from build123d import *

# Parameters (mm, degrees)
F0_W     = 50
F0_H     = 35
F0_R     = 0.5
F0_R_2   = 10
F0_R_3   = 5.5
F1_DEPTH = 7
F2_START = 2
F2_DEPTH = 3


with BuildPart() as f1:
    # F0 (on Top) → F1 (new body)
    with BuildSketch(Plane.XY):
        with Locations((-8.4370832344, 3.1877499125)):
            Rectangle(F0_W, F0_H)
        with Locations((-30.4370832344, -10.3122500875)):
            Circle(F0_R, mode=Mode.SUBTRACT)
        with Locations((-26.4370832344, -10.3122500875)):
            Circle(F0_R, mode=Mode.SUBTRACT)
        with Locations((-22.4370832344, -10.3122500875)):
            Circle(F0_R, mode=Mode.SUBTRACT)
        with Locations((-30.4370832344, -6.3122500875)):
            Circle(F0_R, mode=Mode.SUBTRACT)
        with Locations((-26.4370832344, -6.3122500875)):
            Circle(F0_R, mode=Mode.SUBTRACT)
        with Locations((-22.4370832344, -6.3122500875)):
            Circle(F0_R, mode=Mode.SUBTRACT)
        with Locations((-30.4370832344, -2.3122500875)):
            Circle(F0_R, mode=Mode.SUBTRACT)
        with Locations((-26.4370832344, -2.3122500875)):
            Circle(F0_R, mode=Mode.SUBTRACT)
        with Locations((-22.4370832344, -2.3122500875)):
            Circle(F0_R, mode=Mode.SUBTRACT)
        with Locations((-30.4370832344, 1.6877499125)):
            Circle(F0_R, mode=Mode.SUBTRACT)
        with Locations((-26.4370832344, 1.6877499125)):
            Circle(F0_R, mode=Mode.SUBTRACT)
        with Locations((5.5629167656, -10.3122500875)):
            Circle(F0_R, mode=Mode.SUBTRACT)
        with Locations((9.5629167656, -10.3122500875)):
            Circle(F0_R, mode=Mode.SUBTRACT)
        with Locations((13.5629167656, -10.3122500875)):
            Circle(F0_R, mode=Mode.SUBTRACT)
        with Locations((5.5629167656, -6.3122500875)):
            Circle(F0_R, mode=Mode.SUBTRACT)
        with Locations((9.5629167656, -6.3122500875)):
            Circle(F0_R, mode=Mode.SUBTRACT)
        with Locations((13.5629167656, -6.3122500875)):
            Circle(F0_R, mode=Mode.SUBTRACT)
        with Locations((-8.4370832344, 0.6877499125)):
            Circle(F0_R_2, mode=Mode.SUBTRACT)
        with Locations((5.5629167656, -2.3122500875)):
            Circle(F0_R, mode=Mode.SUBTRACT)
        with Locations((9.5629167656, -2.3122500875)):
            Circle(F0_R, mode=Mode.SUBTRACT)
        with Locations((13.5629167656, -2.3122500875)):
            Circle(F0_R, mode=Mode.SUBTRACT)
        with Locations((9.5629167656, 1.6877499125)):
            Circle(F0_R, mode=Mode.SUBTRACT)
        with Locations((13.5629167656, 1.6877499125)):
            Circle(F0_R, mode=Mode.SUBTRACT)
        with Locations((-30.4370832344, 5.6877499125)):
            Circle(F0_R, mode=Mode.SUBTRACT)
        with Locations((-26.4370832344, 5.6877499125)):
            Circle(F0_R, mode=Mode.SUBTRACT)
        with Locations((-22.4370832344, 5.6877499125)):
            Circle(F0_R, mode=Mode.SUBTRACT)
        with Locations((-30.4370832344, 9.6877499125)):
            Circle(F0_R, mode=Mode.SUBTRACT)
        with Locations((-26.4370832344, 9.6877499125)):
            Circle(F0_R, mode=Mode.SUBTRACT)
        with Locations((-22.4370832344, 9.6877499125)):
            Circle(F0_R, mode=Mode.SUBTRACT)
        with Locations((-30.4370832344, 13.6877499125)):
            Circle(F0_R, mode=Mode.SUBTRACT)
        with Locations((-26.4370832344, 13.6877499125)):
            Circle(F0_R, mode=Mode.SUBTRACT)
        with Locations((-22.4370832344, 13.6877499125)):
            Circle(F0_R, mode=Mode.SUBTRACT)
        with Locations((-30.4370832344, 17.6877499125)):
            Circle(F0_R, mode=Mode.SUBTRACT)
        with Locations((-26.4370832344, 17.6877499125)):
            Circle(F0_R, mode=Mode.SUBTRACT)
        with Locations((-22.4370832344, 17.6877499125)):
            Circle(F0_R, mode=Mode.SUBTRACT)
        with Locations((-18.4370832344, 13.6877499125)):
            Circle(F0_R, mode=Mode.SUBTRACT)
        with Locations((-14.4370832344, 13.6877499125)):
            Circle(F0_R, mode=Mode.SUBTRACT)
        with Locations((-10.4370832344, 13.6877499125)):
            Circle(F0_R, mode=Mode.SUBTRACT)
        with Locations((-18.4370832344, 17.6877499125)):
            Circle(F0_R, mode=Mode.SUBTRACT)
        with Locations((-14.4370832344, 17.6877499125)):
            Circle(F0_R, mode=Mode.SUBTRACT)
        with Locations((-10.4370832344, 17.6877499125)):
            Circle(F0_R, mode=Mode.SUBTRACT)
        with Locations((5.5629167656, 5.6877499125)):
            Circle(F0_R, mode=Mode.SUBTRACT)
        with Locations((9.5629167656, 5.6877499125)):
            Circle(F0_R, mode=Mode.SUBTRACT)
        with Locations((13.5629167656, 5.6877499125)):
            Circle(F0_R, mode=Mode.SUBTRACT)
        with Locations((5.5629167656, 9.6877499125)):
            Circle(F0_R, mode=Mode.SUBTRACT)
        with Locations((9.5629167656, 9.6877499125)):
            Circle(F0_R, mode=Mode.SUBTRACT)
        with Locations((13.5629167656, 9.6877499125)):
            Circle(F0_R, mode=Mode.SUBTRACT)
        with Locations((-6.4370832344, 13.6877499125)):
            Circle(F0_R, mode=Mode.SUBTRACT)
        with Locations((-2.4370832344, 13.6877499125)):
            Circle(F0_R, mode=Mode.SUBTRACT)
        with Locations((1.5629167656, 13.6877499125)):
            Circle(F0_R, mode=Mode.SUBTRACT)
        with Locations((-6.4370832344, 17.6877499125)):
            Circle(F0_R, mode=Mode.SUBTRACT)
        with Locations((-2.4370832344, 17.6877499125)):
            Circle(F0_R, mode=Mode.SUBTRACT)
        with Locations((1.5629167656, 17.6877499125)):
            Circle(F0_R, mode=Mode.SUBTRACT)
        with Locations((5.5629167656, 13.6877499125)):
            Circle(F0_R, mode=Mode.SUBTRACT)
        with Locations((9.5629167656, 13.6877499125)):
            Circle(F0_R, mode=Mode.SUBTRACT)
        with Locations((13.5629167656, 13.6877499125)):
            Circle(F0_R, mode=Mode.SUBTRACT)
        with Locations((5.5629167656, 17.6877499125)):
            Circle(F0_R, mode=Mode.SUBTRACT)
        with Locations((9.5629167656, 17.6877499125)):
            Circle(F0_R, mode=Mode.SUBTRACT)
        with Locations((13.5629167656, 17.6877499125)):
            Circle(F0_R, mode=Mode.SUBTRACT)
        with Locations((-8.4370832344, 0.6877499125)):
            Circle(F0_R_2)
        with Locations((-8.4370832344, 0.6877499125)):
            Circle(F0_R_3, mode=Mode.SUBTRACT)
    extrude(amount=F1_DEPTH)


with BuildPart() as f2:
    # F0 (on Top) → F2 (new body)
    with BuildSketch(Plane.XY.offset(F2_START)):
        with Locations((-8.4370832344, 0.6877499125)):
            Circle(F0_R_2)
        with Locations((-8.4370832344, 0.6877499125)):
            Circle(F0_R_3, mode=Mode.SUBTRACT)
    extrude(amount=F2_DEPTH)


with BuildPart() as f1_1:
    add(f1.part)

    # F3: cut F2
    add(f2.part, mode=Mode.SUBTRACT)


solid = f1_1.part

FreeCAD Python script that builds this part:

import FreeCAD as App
import Part
import Sketcher

V = App.Vector

doc = App.newDocument("Part")
body = doc.addObject("PartDesign::Body", "Body")

# Sketch on XY plane
sketch1 = doc.addObject("Sketcher::SketchObject", "Sketch")
body.addObject(sketch1)
sketch1.AttachmentSupport = (doc.XY_Plane, [""])
sketch1.MapMode = "FlatFace"
sketch1.addGeometry(Part.LineSegment(V(-33.4, 20.7, 0), V(-33.4, -14.3, 0)), False)
sketch1.addGeometry(Part.LineSegment(V(-33.4, -14.3, 0), V(16.6, -14.3, 0)), False)
sketch1.addGeometry(Part.LineSegment(V(16.6, -14.3, 0), V(16.6, 20.7, 0)), False)
sketch1.addGeometry(Part.LineSegment(V(16.6, 20.7, 0), V(-33.4, 20.7, 0)), False)
sketch1.addGeometry(Part.Circle(V(-30.4, -10.3, 0), V(0, 0, 1), 0.5), False)
sketch1.addGeometry(Part.Circle(V(-26.4, -10.3, 0), V(0, 0, 1), 0.5), False)
sketch1.addGeometry(Part.Circle(V(-22.4, -10.3, 0), V(0, 0, 1), 0.5), False)
sketch1.addGeometry(Part.Circle(V(-30.4, -6.3, 0), V(0, 0, 1), 0.5), False)
sketch1.addGeometry(Part.Circle(V(-26.4, -6.3, 0), V(0, 0, 1), 0.5), False)
sketch1.addGeometry(Part.Circle(V(-22.4, -6.3, 0), V(0, 0, 1), 0.5), False)
sketch1.addGeometry(Part.Circle(V(-30.4, -2.3, 0), V(0, 0, 1), 0.5), False)
sketch1.addGeometry(Part.Circle(V(-26.4, -2.3, 0), V(0, 0, 1), 0.5), False)
sketch1.addGeometry(Part.Circle(V(-22.4, -2.3, 0), V(0, 0, 1), 0.5), False)
sketch1.addGeometry(Part.Circle(V(-30.4, 1.7, 0), V(0, 0, 1), 0.5), False)
sketch1.addGeometry(Part.Circle(V(-26.4, 1.7, 0), V(0, 0, 1), 0.5), False)
sketch1.addGeometry(Part.Circle(V(5.6, -10.3, 0), V(0, 0, 1), 0.5), False)
sketch1.addGeometry(Part.Circle(V(9.6, -10.3, 0), V(0, 0, 1), 0.5), False)
sketch1.addGeometry(Part.Circle(V(13.6, -10.3, 0), V(0, 0, 1), 0.5), False)
sketch1.addGeometry(Part.Circle(V(5.6, -6.3, 0), V(0, 0, 1), 0.5), False)
sketch1.addGeometry(Part.Circle(V(9.6, -6.3, 0), V(0, 0, 1), 0.5), False)
sketch1.addGeometry(Part.Circle(V(13.6, -6.3, 0), V(0, 0, 1), 0.5), False)
sketch1.addGeometry(Part.Circle(V(-8.4, 0.7, 0), V(0, 0, 1), 5.5), False)
sketch1.addGeometry(Part.Circle(V(5.6, -2.3, 0), V(0, 0, 1), 0.5), False)
sketch1.addGeometry(Part.Circle(V(9.6, -2.3, 0), V(0, 0, 1), 0.5), False)
sketch1.addGeometry(Part.Circle(V(13.6, -2.3, 0), V(0, 0, 1), 0.5), False)
sketch1.addGeometry(Part.Circle(V(9.6, 1.7, 0), V(0, 0, 1), 0.5), False)
sketch1.addGeometry(Part.Circle(V(13.6, 1.7, 0), V(0, 0, 1), 0.5), False)
sketch1.addGeometry(Part.Circle(V(-30.4, 5.7, 0), V(0, 0, 1), 0.5), False)
sketch1.addGeometry(Part.Circle(V(-26.4, 5.7, 0), V(0, 0, 1), 0.5), False)
sketch1.addGeometry(Part.Circle(V(-22.4, 5.7, 0), V(0, 0, 1), 0.5), False)
sketch1.addGeometry(Part.Circle(V(-30.4, 9.7, 0), V(0, 0, 1), 0.5), False)
sketch1.addGeometry(Part.Circle(V(-26.4, 9.7, 0), V(0, 0, 1), 0.5), False)
sketch1.addGeometry(Part.Circle(V(-22.4, 9.7, 0), V(0, 0, 1), 0.5), False)
sketch1.addGeometry(Part.Circle(V(-30.4, 13.7, 0), V(0, 0, 1), 0.5), False)
sketch1.addGeometry(Part.Circle(V(-26.4, 13.7, 0), V(0, 0, 1), 0.5), False)
sketch1.addGeometry(Part.Circle(V(-22.4, 13.7, 0), V(0, 0, 1), 0.5), False)
sketch1.addGeometry(Part.Circle(V(-30.4, 17.7, 0), V(0, 0, 1), 0.5), False)
sketch1.addGeometry(Part.Circle(V(-26.4, 17.7, 0), V(0, 0, 1), 0.5), False)
sketch1.addGeometry(Part.Circle(V(-22.4, 17.7, 0), V(0, 0, 1), 0.5), False)
sketch1.addGeometry(Part.Circle(V(-18.4, 13.7, 0), V(0, 0, 1), 0.5), False)
sketch1.addGeometry(Part.Circle(V(-14.4, 13.7, 0), V(0, 0, 1), 0.5), False)
sketch1.addGeometry(Part.Circle(V(-10.4, 13.7, 0), V(0, 0, 1), 0.5), False)
sketch1.addGeometry(Part.Circle(V(-18.4, 17.7, 0), V(0, 0, 1), 0.5), False)
sketch1.addGeometry(Part.Circle(V(-14.4, 17.7, 0), V(0, 0, 1), 0.5), False)
sketch1.addGeometry(Part.Circle(V(-10.4, 17.7, 0), V(0, 0, 1), 0.5), False)
sketch1.addGeometry(Part.Circle(V(5.6, 5.7, 0), V(0, 0, 1), 0.5), False)
sketch1.addGeometry(Part.Circle(V(9.6, 5.7, 0), V(0, 0, 1), 0.5), False)
sketch1.addGeometry(Part.Circle(V(13.6, 5.7, 0), V(0, 0, 1), 0.5), False)
sketch1.addGeometry(Part.Circle(V(5.6, 9.7, 0), V(0, 0, 1), 0.5), False)
sketch1.addGeometry(Part.Circle(V(9.6, 9.7, 0), V(0, 0, 1), 0.5), False)
sketch1.addGeometry(Part.Circle(V(13.6, 9.7, 0), V(0, 0, 1), 0.5), False)
sketch1.addGeometry(Part.Circle(V(-6.4, 13.7, 0), V(0, 0, 1), 0.5), False)
sketch1.addGeometry(Part.Circle(V(-2.4, 13.7, 0), V(0, 0, 1), 0.5), False)
sketch1.addGeometry(Part.Circle(V(1.6, 13.7, 0), V(0, 0, 1), 0.5), False)
sketch1.addGeometry(Part.Circle(V(-6.4, 17.7, 0), V(0, 0, 1), 0.5), False)
sketch1.addGeometry(Part.Circle(V(-2.4, 17.7, 0), V(0, 0, 1), 0.5), False)
sketch1.addGeometry(Part.Circle(V(1.6, 17.7, 0), V(0, 0, 1), 0.5), False)
sketch1.addGeometry(Part.Circle(V(5.6, 13.7, 0), V(0, 0, 1), 0.5), False)
sketch1.addGeometry(Part.Circle(V(9.6, 13.7, 0), V(0, 0, 1), 0.5), False)
sketch1.addGeometry(Part.Circle(V(13.6, 13.7, 0), V(0, 0, 1), 0.5), False)
sketch1.addGeometry(Part.Circle(V(5.6, 17.7, 0), V(0, 0, 1), 0.5), False)
sketch1.addGeometry(Part.Circle(V(9.6, 17.7, 0), V(0, 0, 1), 0.5), False)
sketch1.addGeometry(Part.Circle(V(13.6, 17.7, 0), V(0, 0, 1), 0.5), False)
sketch1.addConstraint(Sketcher.Constraint("Coincident", 0, 2, 1, 1))
sketch1.addConstraint(Sketcher.Constraint("Coincident", 1, 2, 2, 1))
sketch1.addConstraint(Sketcher.Constraint("Coincident", 2, 2, 3, 1))
sketch1.addConstraint(Sketcher.Constraint("Coincident", 3, 2, 0, 1))
sketch1.addConstraint(Sketcher.Constraint("Vertical", 0))
sketch1.addConstraint(Sketcher.Constraint("Horizontal", 1))
sketch1.addConstraint(Sketcher.Constraint("Vertical", 2))
sketch1.addConstraint(Sketcher.Constraint("Horizontal", 3))
sketch1.addConstraint(Sketcher.Constraint("Equal", 4, 5))
sketch1.addConstraint(Sketcher.Constraint("Equal", 5, 6))
sketch1.addConstraint(Sketcher.Constraint("Equal", 6, 7))
sketch1.addConstraint(Sketcher.Constraint("Equal", 7, 8))
sketch1.addConstraint(Sketcher.Constraint("Equal", 8, 9))
sketch1.addConstraint(Sketcher.Constraint("Equal", 9, 10))
sketch1.addConstraint(Sketcher.Constraint("Equal", 10, 11))
sketch1.addConstraint(Sketcher.Constraint("Equal", 11, 12))
sketch1.addConstraint(Sketcher.Constraint("Equal", 12, 13))
sketch1.addConstraint(Sketcher.Constraint("Equal", 13, 14))
sketch1.addConstraint(Sketcher.Constraint("Equal", 14, 15))
sketch1.addConstraint(Sketcher.Constraint("Equal", 15, 16))
sketch1.addConstraint(Sketcher.Constraint("Equal", 16, 17))
sketch1.addConstraint(Sketcher.Constraint("Equal", 17, 18))
sketch1.addConstraint(Sketcher.Constraint("Equal", 18, 19))
sketch1.addConstraint(Sketcher.Constraint("Equal", 19, 20))
sketch1.addConstraint(Sketcher.Constraint("Equal", 20, 22))
sketch1.addConstraint(Sketcher.Constraint("Equal", 22, 23))
sketch1.addConstraint(Sketcher.Constraint("Equal", 23, 24))
sketch1.addConstraint(Sketcher.Constraint("Equal", 24, 25))
sketch1.addConstraint(Sketcher.Constraint("Equal", 25, 26))
sketch1.addConstraint(Sketcher.Constraint("Equal", 26, 27))
sketch1.addConstraint(Sketcher.Constraint("Equal", 27, 28))
sketch1.addConstraint(Sketcher.Constraint("Equal", 28, 29))
sketch1.addConstraint(Sketcher.Constraint("Equal", 29, 30))
sketch1.addConstraint(Sketcher.Constraint("Equal", 30, 31))
sketch1.addConstraint(Sketcher.Constraint("Equal", 31, 32))
sketch1.addConstraint(Sketcher.Constraint("Equal", 32, 33))
sketch1.addConstraint(Sketcher.Constraint("Equal", 33, 34))
sketch1.addConstraint(Sketcher.Constraint("Equal", 34, 35))
sketch1.addConstraint(Sketcher.Constraint("Equal", 35, 36))
sketch1.addConstraint(Sketcher.Constraint("Equal", 36, 37))
sketch1.addConstraint(Sketcher.Constraint("Equal", 37, 38))
sketch1.addConstraint(Sketcher.Constraint("Equal", 38, 39))
sketch1.addConstraint(Sketcher.Constraint("Equal", 39, 40))
sketch1.addConstraint(Sketcher.Constraint("Equal", 40, 41))
sketch1.addConstraint(Sketcher.Constraint("Equal", 41, 42))
sketch1.addConstraint(Sketcher.Constraint("Equal", 42, 43))
sketch1.addConstraint(Sketcher.Constraint("Equal", 43, 44))
sketch1.addConstraint(Sketcher.Constraint("Equal", 44, 45))
sketch1.addConstraint(Sketcher.Constraint("Equal", 45, 46))
sketch1.addConstraint(Sketcher.Constraint("Equal", 46, 47))
sketch1.addConstraint(Sketcher.Constraint("Equal", 47, 48))
sketch1.addConstraint(Sketcher.Constraint("Equal", 48, 49))
sketch1.addConstraint(Sketcher.Constraint("Equal", 49, 50))
sketch1.addConstraint(Sketcher.Constraint("Equal", 50, 51))
sketch1.addConstraint(Sketcher.Constraint("Equal", 51, 52))
sketch1.addConstraint(Sketcher.Constraint("Equal", 52, 53))
sketch1.addConstraint(Sketcher.Constraint("Equal", 53, 54))
sketch1.addConstraint(Sketcher.Constraint("Equal", 54, 55))
sketch1.addConstraint(Sketcher.Constraint("Equal", 55, 56))
sketch1.addConstraint(Sketcher.Constraint("Equal", 56, 57))
sketch1.addConstraint(Sketcher.Constraint("Equal", 57, 58))
sketch1.addConstraint(Sketcher.Constraint("Equal", 58, 59))
sketch1.addConstraint(Sketcher.Constraint("Equal", 59, 60))
sketch1.addConstraint(Sketcher.Constraint("Equal", 60, 61))
sketch1.addConstraint(Sketcher.Constraint("Equal", 61, 62))
sketch1.addConstraint(Sketcher.Constraint("Horizontal", 4, 3, 5, 3))
sketch1.addConstraint(Sketcher.Constraint("Horizontal", 5, 3, 6, 3))
sketch1.addConstraint(Sketcher.Constraint("Horizontal", 7, 3, 8, 3))
sketch1.addConstraint(Sketcher.Constraint("Horizontal", 8, 3, 9, 3))
sketch1.addConstraint(Sketcher.Constraint("Horizontal", 10, 3, 11, 3))
sketch1.addConstraint(Sketcher.Constraint("Horizontal", 11, 3, 12, 3))
sketch1.addConstraint(Sketcher.Constraint("Horizontal", 13, 3, 14, 3))
sketch1.addConstraint(Sketcher.Constraint("Horizontal", 6, 3, 15, 3))
sketch1.addConstraint(Sketcher.Constraint("Horizontal", 15, 3, 16, 3))
sketch1.addConstraint(Sketcher.Constraint("Horizontal", 16, 3, 17, 3))
sketch1.addConstraint(Sketcher.Constraint("Horizontal", 9, 3, 18, 3))
sketch1.addConstraint(Sketcher.Constraint("Horizontal", 18, 3, 19, 3))
sketch1.addConstraint(Sketcher.Constraint("Horizontal", 19, 3, 20, 3))
sketch1.addConstraint(Sketcher.Constraint("Horizontal", 12, 3, 22, 3))
sketch1.addConstraint(Sketcher.Constraint("Horizontal", 22, 3, 23, 3))
sketch1.addConstraint(Sketcher.Constraint("Horizontal", 23, 3, 24, 3))
sketch1.addConstraint(Sketcher.Constraint("Horizontal", 14, 3, 25, 3))
sketch1.addConstraint(Sketcher.Constraint("Horizontal", 25, 3, 26, 3))
sketch1.addConstraint(Sketcher.Constraint("Horizontal", 27, 3, 28, 3))
sketch1.addConstraint(Sketcher.Constraint("Horizontal", 28, 3, 29, 3))
sketch1.addConstraint(Sketcher.Constraint("Horizontal", 30, 3, 31, 3))
sketch1.addConstraint(Sketcher.Constraint("Horizontal", 31, 3, 32, 3))
sketch1.addConstraint(Sketcher.Constraint("Horizontal", 33, 3, 34, 3))
sketch1.addConstraint(Sketcher.Constraint("Horizontal", 34, 3, 35, 3))
sketch1.addConstraint(Sketcher.Constraint("Horizontal", 36, 3, 37, 3))
sketch1.addConstraint(Sketcher.Constraint("Horizontal", 37, 3, 38, 3))
sketch1.addConstraint(Sketcher.Constraint("Horizontal", 35, 3, 39, 3))
sketch1.addConstraint(Sketcher.Constraint("Horizontal", 39, 3, 40, 3))
sketch1.addConstraint(Sketcher.Constraint("Horizontal", 40, 3, 41, 3))
sketch1.addConstraint(Sketcher.Constraint("Horizontal", 38, 3, 42, 3))
sketch1.addConstraint(Sketcher.Constraint("Horizontal", 42, 3, 43, 3))
sketch1.addConstraint(Sketcher.Constraint("Horizontal", 43, 3, 44, 3))
sketch1.addConstraint(Sketcher.Constraint("Horizontal", 29, 3, 45, 3))
sketch1.addConstraint(Sketcher.Constraint("Horizontal", 45, 3, 46, 3))
sketch1.addConstraint(Sketcher.Constraint("Horizontal", 46, 3, 47, 3))
sketch1.addConstraint(Sketcher.Constraint("Horizontal", 32, 3, 48, 3))
sketch1.addConstraint(Sketcher.Constraint("Horizontal", 48, 3, 49, 3))
sketch1.addConstraint(Sketcher.Constraint("Horizontal", 49, 3, 50, 3))
sketch1.addConstraint(Sketcher.Constraint("Horizontal", 41, 3, 51, 3))
sketch1.addConstraint(Sketcher.Constraint("Horizontal", 51, 3, 52, 3))
sketch1.addConstraint(Sketcher.Constraint("Horizontal", 52, 3, 53, 3))
sketch1.addConstraint(Sketcher.Constraint("Horizontal", 44, 3, 54, 3))
sketch1.addConstraint(Sketcher.Constraint("Horizontal", 54, 3, 55, 3))
sketch1.addConstraint(Sketcher.Constraint("Horizontal", 55, 3, 56, 3))
sketch1.addConstraint(Sketcher.Constraint("Horizontal", 53, 3, 57, 3))
sketch1.addConstraint(Sketcher.Constraint("Horizontal", 57, 3, 58, 3))
sketch1.addConstraint(Sketcher.Constraint("Horizontal", 58, 3, 59, 3))
sketch1.addConstraint(Sketcher.Constraint("Horizontal", 56, 3, 60, 3))
sketch1.addConstraint(Sketcher.Constraint("Horizontal", 60, 3, 61, 3))
sketch1.addConstraint(Sketcher.Constraint("Horizontal", 61, 3, 62, 3))
sketch1.addConstraint(Sketcher.Constraint("Vertical", 4, 3, 7, 3))
sketch1.addConstraint(Sketcher.Constraint("Vertical", 5, 3, 8, 3))
sketch1.addConstraint(Sketcher.Constraint("Vertical", 6, 3, 9, 3))
sketch1.addConstraint(Sketcher.Constraint("Vertical", 7, 3, 10, 3))
sketch1.addConstraint(Sketcher.Constraint("Vertical", 8, 3, 11, 3))
sketch1.addConstraint(Sketcher.Constraint("Vertical", 9, 3, 12, 3))
sketch1.addConstraint(Sketcher.Constraint("Vertical", 10, 3, 13, 3))
sketch1.addConstraint(Sketcher.Constraint("Vertical", 11, 3, 14, 3))
sketch1.addConstraint(Sketcher.Constraint("Vertical", 15, 3, 18, 3))
sketch1.addConstraint(Sketcher.Constraint("Vertical", 16, 3, 19, 3))
sketch1.addConstraint(Sketcher.Constraint("Vertical", 17, 3, 20, 3))
sketch1.addConstraint(Sketcher.Constraint("Vertical", 18, 3, 22, 3))
sketch1.addConstraint(Sketcher.Constraint("Vertical", 19, 3, 23, 3))
sketch1.addConstraint(Sketcher.Constraint("Vertical", 20, 3, 24, 3))
sketch1.addConstraint(Sketcher.Constraint("Vertical", 23, 3, 25, 3))
sketch1.addConstraint(Sketcher.Constraint("Vertical", 24, 3, 26, 3))
sketch1.addConstraint(Sketcher.Constraint("Vertical", 13, 3, 27, 3))
sketch1.addConstraint(Sketcher.Constraint("Vertical", 14, 3, 28, 3))
sketch1.addConstraint(Sketcher.Constraint("Vertical", 12, 3, 29, 3))
sketch1.addConstraint(Sketcher.Constraint("Vertical", 27, 3, 30, 3))
sketch1.addConstraint(Sketcher.Constraint("Vertical", 28, 3, 31, 3))
sketch1.addConstraint(Sketcher.Constraint("Vertical", 29, 3, 32, 3))
sketch1.addConstraint(Sketcher.Constraint("Vertical", 30, 3, 33, 3))
sketch1.addConstraint(Sketcher.Constraint("Vertical", 31, 3, 34, 3))
sketch1.addConstraint(Sketcher.Constraint("Vertical", 32, 3, 35, 3))
sketch1.addConstraint(Sketcher.Constraint("Vertical", 33, 3, 36, 3))
sketch1.addConstraint(Sketcher.Constraint("Vertical", 34, 3, 37, 3))
sketch1.addConstraint(Sketcher.Constraint("Vertical", 35, 3, 38, 3))
sketch1.addConstraint(Sketcher.Constraint("Vertical", 39, 3, 42, 3))
sketch1.addConstraint(Sketcher.Constraint("Vertical", 40, 3, 43, 3))
sketch1.addConstraint(Sketcher.Constraint("Vertical", 41, 3, 44, 3))
sketch1.addConstraint(Sketcher.Constraint("Vertical", 22, 3, 45, 3))
sketch1.addConstraint(Sketcher.Constraint("Vertical", 25, 3, 46, 3))
sketch1.addConstraint(Sketcher.Constraint("Vertical", 26, 3, 47, 3))
sketch1.addConstraint(Sketcher.Constraint("Vertical", 45, 3, 48, 3))
sketch1.addConstraint(Sketcher.Constraint("Vertical", 46, 3, 49, 3))
sketch1.addConstraint(Sketcher.Constraint("Vertical", 47, 3, 50, 3))
sketch1.addConstraint(Sketcher.Constraint("Vertical", 51, 3, 54, 3))
sketch1.addConstraint(Sketcher.Constraint("Vertical", 52, 3, 55, 3))
sketch1.addConstraint(Sketcher.Constraint("Vertical", 53, 3, 56, 3))
sketch1.addConstraint(Sketcher.Constraint("Vertical", 48, 3, 57, 3))
sketch1.addConstraint(Sketcher.Constraint("Vertical", 49, 3, 58, 3))
sketch1.addConstraint(Sketcher.Constraint("Vertical", 50, 3, 59, 3))
sketch1.addConstraint(Sketcher.Constraint("Vertical", 57, 3, 60, 3))
sketch1.addConstraint(Sketcher.Constraint("Vertical", 58, 3, 61, 3))
sketch1.addConstraint(Sketcher.Constraint("Vertical", 59, 3, 62, 3))
sketch1.addConstraint(Sketcher.Constraint("Diameter", 4, 1.0))
sketch1.addConstraint(Sketcher.Constraint("Diameter", 21, 11.0))
sketch1.addConstraint(Sketcher.Constraint("DistanceX", 1, 1, 1, 2, 50.0))
sketch1.addConstraint(Sketcher.Constraint("DistanceY", 0, 2, 0, 1, 35.0))
sketch1.addConstraint(Sketcher.Constraint("DistanceY", 4, 3, -1, 1, 10.31225))
sketch1.addConstraint(Sketcher.Constraint("DistanceY", 7, 3, -1, 1, 6.31225))
sketch1.addConstraint(Sketcher.Constraint("DistanceY", 10, 3, -1, 1, 2.31225))
sketch1.addConstraint(Sketcher.Constraint("DistanceY", -1, 1, 13, 3, 1.68775))
sketch1.addConstraint(Sketcher.Constraint("DistanceY", -1, 1, 21, 3, 0.68775))
sketch1.addConstraint(Sketcher.Constraint("DistanceY", -1, 1, 27, 3, 5.68775))
sketch1.addConstraint(Sketcher.Constraint("DistanceY", -1, 1, 30, 3, 9.68775))
sketch1.addConstraint(Sketcher.Constraint("DistanceY", -1, 1, 33, 3, 13.68775))
sketch1.addConstraint(Sketcher.Constraint("DistanceY", -1, 1, 36, 3, 17.68775))
sketch1.addConstraint(Sketcher.Constraint("DistanceY", 0, 2, -1, 1, 14.31225))
sketch1.addConstraint(Sketcher.Constraint("DistanceX", 4, 3, -1, 1, 30.437083))
sketch1.addConstraint(Sketcher.Constraint("DistanceX", 5, 3, -1, 1, 26.437083))
sketch1.addConstraint(Sketcher.Constraint("DistanceX", 6, 3, -1, 1, 22.437083))
sketch1.addConstraint(Sketcher.Constraint("DistanceX", -1, 1, 15, 3, 5.562917))
sketch1.addConstraint(Sketcher.Constraint("DistanceX", -1, 1, 16, 3, 9.562917))
sketch1.addConstraint(Sketcher.Constraint("DistanceX", -1, 1, 17, 3, 13.562917))
sketch1.addConstraint(Sketcher.Constraint("DistanceX", 21, 3, -1, 1, 8.437083))
sketch1.addConstraint(Sketcher.Constraint("DistanceX", 39, 3, -1, 1, 18.437083))
sketch1.addConstraint(Sketcher.Constraint("DistanceX", 40, 3, -1, 1, 14.437083))
sketch1.addConstraint(Sketcher.Constraint("DistanceX", 41, 3, -1, 1, 10.437083))
sketch1.addConstraint(Sketcher.Constraint("DistanceX", 51, 3, -1, 1, 6.437083))
sketch1.addConstraint(Sketcher.Constraint("DistanceX", 52, 3, -1, 1, 2.437083))
sketch1.addConstraint(Sketcher.Constraint("DistanceX", -1, 1, 53, 3, 1.562917))
sketch1.addConstraint(Sketcher.Constraint("DistanceX", 0, 2, -1, 1, 33.437083))
pad1 = doc.addObject("PartDesign::Pad", "Pad")
body.addObject(pad1)
pad1.Profile = sketch1
pad1.Length = 7
body2 = doc.addObject("PartDesign::Body", "Body001")

# Sketch on XY plane
sketch2 = doc.addObject("Sketcher::SketchObject", "Sketch001")
body2.addObject(sketch2)
sketch2.AttachmentSupport = (doc.getObject("XY_Plane001"), [""])
sketch2.MapMode = "FlatFace"
sketch2.AttachmentOffset = App.Placement(V(0, 0, 2), App.Rotation())
sketch2.addGeometry(Part.Circle(V(-8, 1, 0), V(0, 0, 1), 10), False)
sketch2.addGeometry(Part.Circle(V(-8, 1, 0), V(0, 0, 1), 6), False)
sketch2.addConstraint(Sketcher.Constraint("Coincident", 1, 3, 0, 3))
sketch2.addConstraint(Sketcher.Constraint("Diameter", 0, 20.0))
sketch2.addConstraint(Sketcher.Constraint("Diameter", 1, 11.0))
sketch2.addConstraint(Sketcher.Constraint("DistanceY", -1, 1, 0, 3, 0.68775))
sketch2.addConstraint(Sketcher.Constraint("DistanceX", 0, 3, -1, 1, 8.437083))
pad2 = doc.addObject("PartDesign::Pad", "Pad001")
body2.addObject(pad2)
pad2.Profile = sketch2
pad2.Length = 3
doc.recompute()

boolean = doc.addObject("PartDesign::Boolean", "Boolean")
body.addObject(boolean)
boolean.Type = "Cut"
boolean.addObjects([body2])

doc.recompute()
